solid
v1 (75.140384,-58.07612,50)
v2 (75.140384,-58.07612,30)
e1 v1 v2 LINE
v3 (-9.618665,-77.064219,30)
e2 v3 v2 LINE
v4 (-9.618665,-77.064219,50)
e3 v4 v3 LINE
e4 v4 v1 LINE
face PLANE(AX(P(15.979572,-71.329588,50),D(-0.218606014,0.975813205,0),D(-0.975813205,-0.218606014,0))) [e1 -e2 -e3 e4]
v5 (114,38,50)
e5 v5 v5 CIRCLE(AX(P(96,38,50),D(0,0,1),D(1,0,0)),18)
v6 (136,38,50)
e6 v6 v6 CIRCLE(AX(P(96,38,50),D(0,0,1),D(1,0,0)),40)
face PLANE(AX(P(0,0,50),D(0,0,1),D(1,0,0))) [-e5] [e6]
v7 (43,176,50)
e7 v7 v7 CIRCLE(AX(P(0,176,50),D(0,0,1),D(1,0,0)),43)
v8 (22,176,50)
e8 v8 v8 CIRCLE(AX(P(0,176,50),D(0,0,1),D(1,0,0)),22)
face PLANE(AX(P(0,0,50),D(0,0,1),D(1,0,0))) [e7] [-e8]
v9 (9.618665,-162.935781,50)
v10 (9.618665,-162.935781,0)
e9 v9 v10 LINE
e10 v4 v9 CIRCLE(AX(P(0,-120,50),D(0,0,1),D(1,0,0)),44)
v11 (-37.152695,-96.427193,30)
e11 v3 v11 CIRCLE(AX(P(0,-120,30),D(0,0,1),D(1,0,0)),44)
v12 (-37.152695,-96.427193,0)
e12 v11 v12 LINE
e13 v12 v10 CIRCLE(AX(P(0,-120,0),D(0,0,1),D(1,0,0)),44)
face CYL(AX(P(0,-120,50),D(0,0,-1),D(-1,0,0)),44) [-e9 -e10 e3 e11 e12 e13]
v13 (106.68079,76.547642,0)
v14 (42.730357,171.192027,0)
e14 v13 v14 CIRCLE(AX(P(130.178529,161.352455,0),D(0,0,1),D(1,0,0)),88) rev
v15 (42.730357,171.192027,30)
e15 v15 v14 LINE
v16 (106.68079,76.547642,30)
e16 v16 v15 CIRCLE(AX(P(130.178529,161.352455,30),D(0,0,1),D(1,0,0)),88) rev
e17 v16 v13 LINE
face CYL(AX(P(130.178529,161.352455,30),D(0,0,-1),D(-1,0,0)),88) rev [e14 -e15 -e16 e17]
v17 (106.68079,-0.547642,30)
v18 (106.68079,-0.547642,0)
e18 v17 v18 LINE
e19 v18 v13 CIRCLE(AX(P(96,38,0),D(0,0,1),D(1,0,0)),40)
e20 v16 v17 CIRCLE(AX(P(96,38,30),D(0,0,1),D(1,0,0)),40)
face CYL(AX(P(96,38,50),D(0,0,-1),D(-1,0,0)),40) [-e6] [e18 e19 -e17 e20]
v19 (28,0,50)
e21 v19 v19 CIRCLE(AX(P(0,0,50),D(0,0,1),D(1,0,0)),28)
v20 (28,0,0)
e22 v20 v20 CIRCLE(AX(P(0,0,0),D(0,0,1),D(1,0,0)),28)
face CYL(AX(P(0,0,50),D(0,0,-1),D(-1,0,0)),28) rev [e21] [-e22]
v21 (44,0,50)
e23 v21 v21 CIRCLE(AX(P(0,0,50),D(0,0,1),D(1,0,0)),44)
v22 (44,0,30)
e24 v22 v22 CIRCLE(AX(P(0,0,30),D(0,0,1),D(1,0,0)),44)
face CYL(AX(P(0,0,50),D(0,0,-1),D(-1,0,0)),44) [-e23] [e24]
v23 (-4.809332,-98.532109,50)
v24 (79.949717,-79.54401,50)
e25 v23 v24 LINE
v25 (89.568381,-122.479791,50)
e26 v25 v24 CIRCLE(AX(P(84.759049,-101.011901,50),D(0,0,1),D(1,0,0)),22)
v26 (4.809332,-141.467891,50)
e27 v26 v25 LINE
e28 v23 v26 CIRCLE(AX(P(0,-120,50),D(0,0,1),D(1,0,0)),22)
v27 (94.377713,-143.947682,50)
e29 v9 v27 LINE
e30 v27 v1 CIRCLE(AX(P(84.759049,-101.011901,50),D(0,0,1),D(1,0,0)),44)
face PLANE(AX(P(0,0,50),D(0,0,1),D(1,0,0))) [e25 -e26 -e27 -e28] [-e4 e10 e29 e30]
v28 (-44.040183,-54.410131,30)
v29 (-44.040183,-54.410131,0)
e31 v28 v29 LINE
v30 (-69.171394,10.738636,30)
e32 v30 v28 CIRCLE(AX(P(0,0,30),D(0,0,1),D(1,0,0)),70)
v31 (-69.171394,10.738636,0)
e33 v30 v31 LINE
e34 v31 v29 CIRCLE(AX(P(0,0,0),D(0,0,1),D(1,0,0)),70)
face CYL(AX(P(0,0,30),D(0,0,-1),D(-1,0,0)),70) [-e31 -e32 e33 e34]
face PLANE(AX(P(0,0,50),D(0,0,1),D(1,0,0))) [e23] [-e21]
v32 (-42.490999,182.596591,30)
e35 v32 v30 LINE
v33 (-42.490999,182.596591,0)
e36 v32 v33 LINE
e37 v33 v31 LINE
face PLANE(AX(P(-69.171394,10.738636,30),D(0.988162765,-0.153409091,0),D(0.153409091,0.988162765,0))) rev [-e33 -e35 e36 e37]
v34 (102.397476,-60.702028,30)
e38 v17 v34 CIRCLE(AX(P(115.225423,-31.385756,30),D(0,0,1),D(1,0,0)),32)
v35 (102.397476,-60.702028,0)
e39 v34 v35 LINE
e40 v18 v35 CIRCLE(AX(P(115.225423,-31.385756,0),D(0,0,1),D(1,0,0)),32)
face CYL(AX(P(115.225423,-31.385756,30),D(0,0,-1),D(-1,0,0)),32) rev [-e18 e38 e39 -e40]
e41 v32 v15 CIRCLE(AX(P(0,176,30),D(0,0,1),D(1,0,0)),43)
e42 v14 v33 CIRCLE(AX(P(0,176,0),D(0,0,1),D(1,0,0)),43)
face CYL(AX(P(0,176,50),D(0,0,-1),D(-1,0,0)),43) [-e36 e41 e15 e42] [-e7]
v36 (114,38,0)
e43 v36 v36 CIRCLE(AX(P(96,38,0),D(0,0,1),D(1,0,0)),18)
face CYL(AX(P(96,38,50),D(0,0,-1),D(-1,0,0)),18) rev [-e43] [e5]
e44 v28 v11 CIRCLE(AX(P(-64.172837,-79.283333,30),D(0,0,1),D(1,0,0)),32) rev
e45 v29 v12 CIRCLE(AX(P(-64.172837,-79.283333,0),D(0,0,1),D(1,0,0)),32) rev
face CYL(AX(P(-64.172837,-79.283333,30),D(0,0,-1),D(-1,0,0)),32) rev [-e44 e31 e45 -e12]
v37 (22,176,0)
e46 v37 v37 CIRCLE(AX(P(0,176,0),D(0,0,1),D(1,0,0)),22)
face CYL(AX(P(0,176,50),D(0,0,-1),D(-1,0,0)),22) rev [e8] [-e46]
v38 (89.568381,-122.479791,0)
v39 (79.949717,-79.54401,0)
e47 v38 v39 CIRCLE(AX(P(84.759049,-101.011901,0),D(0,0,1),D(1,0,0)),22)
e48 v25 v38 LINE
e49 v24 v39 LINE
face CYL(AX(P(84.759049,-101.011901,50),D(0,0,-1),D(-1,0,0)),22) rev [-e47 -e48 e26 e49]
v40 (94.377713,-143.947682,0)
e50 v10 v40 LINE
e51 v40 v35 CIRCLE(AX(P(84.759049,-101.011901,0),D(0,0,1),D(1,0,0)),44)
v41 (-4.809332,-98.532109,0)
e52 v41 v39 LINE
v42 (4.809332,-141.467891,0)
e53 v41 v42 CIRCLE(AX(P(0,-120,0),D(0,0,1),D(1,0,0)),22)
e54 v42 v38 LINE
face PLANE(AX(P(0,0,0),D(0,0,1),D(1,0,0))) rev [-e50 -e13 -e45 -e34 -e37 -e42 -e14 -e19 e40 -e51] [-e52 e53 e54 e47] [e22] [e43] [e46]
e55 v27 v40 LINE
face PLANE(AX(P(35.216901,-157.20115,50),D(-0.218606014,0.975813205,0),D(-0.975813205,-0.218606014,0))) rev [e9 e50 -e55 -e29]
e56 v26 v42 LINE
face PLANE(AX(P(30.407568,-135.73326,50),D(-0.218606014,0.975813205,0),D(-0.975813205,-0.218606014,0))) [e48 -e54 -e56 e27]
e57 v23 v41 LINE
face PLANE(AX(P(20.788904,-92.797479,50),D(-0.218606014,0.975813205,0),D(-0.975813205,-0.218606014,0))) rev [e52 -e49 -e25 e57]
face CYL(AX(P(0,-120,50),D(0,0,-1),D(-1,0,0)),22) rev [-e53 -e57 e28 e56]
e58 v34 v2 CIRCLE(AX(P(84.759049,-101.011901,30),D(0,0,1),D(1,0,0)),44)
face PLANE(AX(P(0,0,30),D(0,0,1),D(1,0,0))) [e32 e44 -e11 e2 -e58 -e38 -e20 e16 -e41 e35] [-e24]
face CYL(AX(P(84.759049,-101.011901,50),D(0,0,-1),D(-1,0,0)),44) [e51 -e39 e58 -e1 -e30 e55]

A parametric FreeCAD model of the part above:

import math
import FreeCAD as App
import Part
import Sketcher
from FreeCAD import Vector

doc = App.newDocument("Part")
body = doc.addObject("PartDesign::Body", "Body")

# Sketch on XY plane
sketch1 = body.newObject("Sketcher::SketchObject", "Sketch")
sketch1.AttachmentSupport = (doc.getObject("XY_Plane"), [""])
sketch1.MapMode = "FlatFace"
sketch1.addGeometry(Part.ArcOfCircle(Part.Circle(Vector(0, -120, 0), Vector(0, 0, 1), 44), math.radians(103), math.radians(148)), False)
sketch1.addGeometry(Part.LineSegment(Vector(-10, -77, 0), Vector(75, -58, 0)), False)
sketch1.addGeometry(Part.ArcOfCircle(Part.Circle(Vector(85, -101, 0), Vector(0, 0, 1), 44), math.radians(66), math.radians(103)), False)
sketch1.addGeometry(Part.ArcOfCircle(Part.Circle(Vector(115, -31, 0), Vector(0, 0, 1), 32), math.radians(105), math.radians(246)), False)
sketch1.addGeometry(Part.ArcOfCircle(Part.Circle(Vector(96, 38, 0), Vector(0, 0, 1), 40), math.radians(75), math.radians(285)), False)
sketch1.addGeometry(Part.ArcOfCircle(Part.Circle(Vector(130, 161, 0), Vector(0, 0, 1), 88), math.radians(174), math.radians(255)), False)
sketch1.addGeometry(Part.ArcOfCircle(Part.Circle(Vector(0, 176, 0), Vector(0, 0, 1), 43), math.radians(171), math.radians(354)), False)
sketch1.addGeometry(Part.LineSegment(Vector(-42, 183, 0), Vector(-69, 11, 0)), False)
sketch1.addGeometry(Part.ArcOfCircle(Part.Circle(Vector(0, 0, 0), Vector(0, 0, 1), 70), math.radians(171), math.radians(231)), False)
sketch1.addGeometry(Part.ArcOfCircle(Part.Circle(Vector(-64, -79, 0), Vector(0, 0, 1), 32), math.radians(-32), math.radians(51)), False)
sketch1.addGeometry(Part.Circle(Vector(0, 0, 0), Vector(0, 0, 1), 44), False)
sketch1.addConstraint(Sketcher.Constraint("Tangent", 0, 1, 1, 1))
sketch1.addConstraint(Sketcher.Constraint("Tangent", 1, 2, 2, 2))
sketch1.addConstraint(Sketcher.Constraint("Tangent", 2, 1, 3, 2))
sketch1.addConstraint(Sketcher.Constraint("Tangent", 3, 1, 4, 2))
sketch1.addConstraint(Sketcher.Constraint("Tangent", 4, 1, 5, 2))
sketch1.addConstraint(Sketcher.Constraint("Tangent", 5, 1, 6, 2))
sketch1.addConstraint(Sketcher.Constraint("Tangent", 6, 1, 7, 1))
sketch1.addConstraint(Sketcher.Constraint("Tangent", 7, 2, 8, 1))
sketch1.addConstraint(Sketcher.Constraint("Tangent", 8, 2, 9, 2))
sketch1.addConstraint(Sketcher.Constraint("Tangent", 9, 1, 0, 2))
sketch1.addConstraint(Sketcher.Constraint("Coincident", 8, 3, -1, 1))
sketch1.addConstraint(Sketcher.Constraint("Coincident", 10, 3, -1, 1))
sketch1.addConstraint(Sketcher.Constraint("Equal", 0, 2))
sketch1.addConstraint(Sketcher.Constraint("Equal", 3, 9))
sketch1.addConstraint(Sketcher.Constraint("Equal", 2, 10))
sketch1.addConstraint(Sketcher.Constraint("PointOnObject", 0, 3, -2))
sketch1.addConstraint(Sketcher.Constraint("PointOnObject", 6, 3, -2))
sketch1.addConstraint(Sketcher.Constraint("Vertical", 3, 1, 4, 1))
sketch1.addConstraint(Sketcher.Constraint("Diameter", 10, 88.0))
sketch1.addConstraint(Sketcher.Constraint("Radius", 3, 32.0))
sketch1.addConstraint(Sketcher.Constraint("Radius", 4, 40.0))
sketch1.addConstraint(Sketcher.Constraint("Radius", 5, 88.0))
sketch1.addConstraint(Sketcher.Constraint("Radius", 6, 43.0))
sketch1.addConstraint(Sketcher.Constraint("Radius", 8, 70.0))
sketch1.addConstraint(Sketcher.Constraint("DistanceY", 0, 3, -1, 1, 120.0))
sketch1.addConstraint(Sketcher.Constraint("DistanceX", -1, 1, 4, 3, 96.0))
sketch1.addConstraint(Sketcher.Constraint("DistanceY", -1, 1, 4, 3, 38.0))
sketch1.addConstraint(Sketcher.Constraint("DistanceY", -1, 1, 6, 3, 176.0))
sketch1.addConstraint(Sketcher.Constraint("DistanceY", 2, 3, -1, 1, 101.011901))
pad1 = body.newObject("PartDesign::Pad", "Pad")
pad1.Profile = sketch1
pad1.Length = 30

# Sketch on XY plane
sketch2 = body.newObject("Sketcher::SketchObject", "Sketch001")
sketch2.AttachmentSupport = (doc.getObject("XY_Plane"), [""])
sketch2.MapMode = "FlatFace"
sketch2.addGeometry(Part.Circle(Vector(0, 176, 0), Vector(0, 0, 1), 43), False)
sketch2.addGeometry(Part.Circle(Vector(0, 176, 0), Vector(0, 0, 1), 22), False)
sketch2.addGeometry(Part.Circle(Vector(96, 38, 0), Vector(0, 0, 1), 40), False)
sketch2.addGeometry(Part.Circle(Vector(96, 38, 0), Vector(0, 0, 1), 18), False)
sketch2.addGeometry(Part.Circle(Vector(0, 0, 0), Vector(0, 0, 1), 44), False)
sketch2.addGeometry(Part.Circle(Vector(0, 0, 0), Vector(0, 0, 1), 28), False)
sketch2.addGeometry(Part.LineSegment(Vector(10, -163, 0), Vector(94, -144, 0)), False)
sketch2.addGeometry(Part.ArcOfCircle(Part.Circle(Vector(85, -101, 0), Vector(0, 0, 1), 44), math.radians(-77), math.radians(103)), False)
sketch2.addGeometry(Part.LineSegment(Vector(75, -58, 0), Vector(-10, -77, 0)), False)
sketch2.addGeometry(Part.ArcOfCircle(Part.Circle(Vector(0, -120, 0), Vector(0, 0, 1), 44), math.radians(103), math.radians(283)), False)
sketch2.addGeometry(Part.ArcOfCircle(Part.Circle(Vector(0, -120, 0), Vector(0, 0, 1), 22), math.radians(103), math.radians(283)), False)
sketch2.addGeometry(Part.LineSegment(Vector(-5, -99, 0), Vector(80, -80, 0)), False)
sketch2.addGeometry(Part.ArcOfCircle(Part.Circle(Vector(85, -101, 0), Vector(0, 0, 1), 22), math.radians(-77), math.radians(103)), False)
sketch2.addGeometry(Part.LineSegment(Vector(90, -122, 0), Vector(5, -141, 0)), False)
sketch2.addConstraint(Sketcher.Constraint("Tangent", 6, 2, 7, 1))
sketch2.addConstraint(Sketcher.Constraint("Tangent", 7, 2, 8, 1))
sketch2.addConstraint(Sketcher.Constraint("Tangent", 8, 2, 9, 1))
sketch2.addConstraint(Sketcher.Constraint("Tangent", 9, 2, 6, 1))
sketch2.addConstraint(Sketcher.Constraint("Tangent", 10, 1, 11, 1))
sketch2.addConstraint(Sketcher.Constraint("Tangent", 11, 2, 12, 2))
sketch2.addConstraint(Sketcher.Constraint("Tangent", 12, 1, 13, 1))
sketch2.addConstraint(Sketcher.Constraint("Tangent", 13, 2, 10, 2))
sketch2.addConstraint(Sketcher.Constraint("Coincident", 4, 3, -1, 1))
sketch2.addConstraint(Sketcher.Constraint("Coincident", 5, 3, -1, 1))
sketch2.addConstraint(Sketcher.Constraint("Coincident", 1, 3, 0, 3))
sketch2.addConstraint(Sketcher.Constraint("Coincident", 3, 3, 2, 3))
sketch2.addConstraint(Sketcher.Constraint("Coincident", 10, 3, 9, 3))
sketch2.addConstraint(Sketcher.Constraint("Coincident", 12, 3, 7, 3))
sketch2.addConstraint(Sketcher.Constraint("Equal", 4, 7))
sketch2.addConstraint(Sketcher.Constraint("Equal", 7, 9))
sketch2.addConstraint(Sketcher.Constraint("Equal", 1, 10))
sketch2.addConstraint(Sketcher.Constraint("Equal", 10, 12))
sketch2.addConstraint(Sketcher.Constraint("PointOnObject", 0, 3, -2))
sketch2.addConstraint(Sketcher.Constraint("PointOnObject", 9, 3, -2))
sketch2.addConstraint(Sketcher.Constraint("Diameter", 0, 86.0))
sketch2.addConstraint(Sketcher.Constraint("Diameter", 1, 44.0))
sketch2.addConstraint(Sketcher.Constraint("Diameter", 2, 80.0))
sketch2.addConstraint(Sketcher.Constraint("Diameter", 3, 36.0))
sketch2.addConstraint(Sketcher.Constraint("Diameter", 4, 88.0))
sketch2.addConstraint(Sketcher.Constraint("Diameter", 5, 56.0))
sketch2.addConstraint(Sketcher.Constraint("DistanceY", -1, 1, 0, 3, 176.0))
sketch2.addConstraint(Sketcher.Constraint("DistanceX", -1, 1, 2, 3, 96.0))
sketch2.addConstraint(Sketcher.Constraint("DistanceY", -1, 1, 2, 3, 38.0))
sketch2.addConstraint(Sketcher.Constraint("DistanceY", 9, 3, -1, 1, 120.0))
sketch2.addConstraint(Sketcher.Constraint("DistanceY", 7, 3, -1, 1, 101.011901))
sketch2.addConstraint(Sketcher.Constraint("Distance", 6, 86.859912))
pad2 = body.newObject("PartDesign::Pad", "Pad001")
pad2.Profile = sketch2
pad2.Length = 50

doc.recompute()
